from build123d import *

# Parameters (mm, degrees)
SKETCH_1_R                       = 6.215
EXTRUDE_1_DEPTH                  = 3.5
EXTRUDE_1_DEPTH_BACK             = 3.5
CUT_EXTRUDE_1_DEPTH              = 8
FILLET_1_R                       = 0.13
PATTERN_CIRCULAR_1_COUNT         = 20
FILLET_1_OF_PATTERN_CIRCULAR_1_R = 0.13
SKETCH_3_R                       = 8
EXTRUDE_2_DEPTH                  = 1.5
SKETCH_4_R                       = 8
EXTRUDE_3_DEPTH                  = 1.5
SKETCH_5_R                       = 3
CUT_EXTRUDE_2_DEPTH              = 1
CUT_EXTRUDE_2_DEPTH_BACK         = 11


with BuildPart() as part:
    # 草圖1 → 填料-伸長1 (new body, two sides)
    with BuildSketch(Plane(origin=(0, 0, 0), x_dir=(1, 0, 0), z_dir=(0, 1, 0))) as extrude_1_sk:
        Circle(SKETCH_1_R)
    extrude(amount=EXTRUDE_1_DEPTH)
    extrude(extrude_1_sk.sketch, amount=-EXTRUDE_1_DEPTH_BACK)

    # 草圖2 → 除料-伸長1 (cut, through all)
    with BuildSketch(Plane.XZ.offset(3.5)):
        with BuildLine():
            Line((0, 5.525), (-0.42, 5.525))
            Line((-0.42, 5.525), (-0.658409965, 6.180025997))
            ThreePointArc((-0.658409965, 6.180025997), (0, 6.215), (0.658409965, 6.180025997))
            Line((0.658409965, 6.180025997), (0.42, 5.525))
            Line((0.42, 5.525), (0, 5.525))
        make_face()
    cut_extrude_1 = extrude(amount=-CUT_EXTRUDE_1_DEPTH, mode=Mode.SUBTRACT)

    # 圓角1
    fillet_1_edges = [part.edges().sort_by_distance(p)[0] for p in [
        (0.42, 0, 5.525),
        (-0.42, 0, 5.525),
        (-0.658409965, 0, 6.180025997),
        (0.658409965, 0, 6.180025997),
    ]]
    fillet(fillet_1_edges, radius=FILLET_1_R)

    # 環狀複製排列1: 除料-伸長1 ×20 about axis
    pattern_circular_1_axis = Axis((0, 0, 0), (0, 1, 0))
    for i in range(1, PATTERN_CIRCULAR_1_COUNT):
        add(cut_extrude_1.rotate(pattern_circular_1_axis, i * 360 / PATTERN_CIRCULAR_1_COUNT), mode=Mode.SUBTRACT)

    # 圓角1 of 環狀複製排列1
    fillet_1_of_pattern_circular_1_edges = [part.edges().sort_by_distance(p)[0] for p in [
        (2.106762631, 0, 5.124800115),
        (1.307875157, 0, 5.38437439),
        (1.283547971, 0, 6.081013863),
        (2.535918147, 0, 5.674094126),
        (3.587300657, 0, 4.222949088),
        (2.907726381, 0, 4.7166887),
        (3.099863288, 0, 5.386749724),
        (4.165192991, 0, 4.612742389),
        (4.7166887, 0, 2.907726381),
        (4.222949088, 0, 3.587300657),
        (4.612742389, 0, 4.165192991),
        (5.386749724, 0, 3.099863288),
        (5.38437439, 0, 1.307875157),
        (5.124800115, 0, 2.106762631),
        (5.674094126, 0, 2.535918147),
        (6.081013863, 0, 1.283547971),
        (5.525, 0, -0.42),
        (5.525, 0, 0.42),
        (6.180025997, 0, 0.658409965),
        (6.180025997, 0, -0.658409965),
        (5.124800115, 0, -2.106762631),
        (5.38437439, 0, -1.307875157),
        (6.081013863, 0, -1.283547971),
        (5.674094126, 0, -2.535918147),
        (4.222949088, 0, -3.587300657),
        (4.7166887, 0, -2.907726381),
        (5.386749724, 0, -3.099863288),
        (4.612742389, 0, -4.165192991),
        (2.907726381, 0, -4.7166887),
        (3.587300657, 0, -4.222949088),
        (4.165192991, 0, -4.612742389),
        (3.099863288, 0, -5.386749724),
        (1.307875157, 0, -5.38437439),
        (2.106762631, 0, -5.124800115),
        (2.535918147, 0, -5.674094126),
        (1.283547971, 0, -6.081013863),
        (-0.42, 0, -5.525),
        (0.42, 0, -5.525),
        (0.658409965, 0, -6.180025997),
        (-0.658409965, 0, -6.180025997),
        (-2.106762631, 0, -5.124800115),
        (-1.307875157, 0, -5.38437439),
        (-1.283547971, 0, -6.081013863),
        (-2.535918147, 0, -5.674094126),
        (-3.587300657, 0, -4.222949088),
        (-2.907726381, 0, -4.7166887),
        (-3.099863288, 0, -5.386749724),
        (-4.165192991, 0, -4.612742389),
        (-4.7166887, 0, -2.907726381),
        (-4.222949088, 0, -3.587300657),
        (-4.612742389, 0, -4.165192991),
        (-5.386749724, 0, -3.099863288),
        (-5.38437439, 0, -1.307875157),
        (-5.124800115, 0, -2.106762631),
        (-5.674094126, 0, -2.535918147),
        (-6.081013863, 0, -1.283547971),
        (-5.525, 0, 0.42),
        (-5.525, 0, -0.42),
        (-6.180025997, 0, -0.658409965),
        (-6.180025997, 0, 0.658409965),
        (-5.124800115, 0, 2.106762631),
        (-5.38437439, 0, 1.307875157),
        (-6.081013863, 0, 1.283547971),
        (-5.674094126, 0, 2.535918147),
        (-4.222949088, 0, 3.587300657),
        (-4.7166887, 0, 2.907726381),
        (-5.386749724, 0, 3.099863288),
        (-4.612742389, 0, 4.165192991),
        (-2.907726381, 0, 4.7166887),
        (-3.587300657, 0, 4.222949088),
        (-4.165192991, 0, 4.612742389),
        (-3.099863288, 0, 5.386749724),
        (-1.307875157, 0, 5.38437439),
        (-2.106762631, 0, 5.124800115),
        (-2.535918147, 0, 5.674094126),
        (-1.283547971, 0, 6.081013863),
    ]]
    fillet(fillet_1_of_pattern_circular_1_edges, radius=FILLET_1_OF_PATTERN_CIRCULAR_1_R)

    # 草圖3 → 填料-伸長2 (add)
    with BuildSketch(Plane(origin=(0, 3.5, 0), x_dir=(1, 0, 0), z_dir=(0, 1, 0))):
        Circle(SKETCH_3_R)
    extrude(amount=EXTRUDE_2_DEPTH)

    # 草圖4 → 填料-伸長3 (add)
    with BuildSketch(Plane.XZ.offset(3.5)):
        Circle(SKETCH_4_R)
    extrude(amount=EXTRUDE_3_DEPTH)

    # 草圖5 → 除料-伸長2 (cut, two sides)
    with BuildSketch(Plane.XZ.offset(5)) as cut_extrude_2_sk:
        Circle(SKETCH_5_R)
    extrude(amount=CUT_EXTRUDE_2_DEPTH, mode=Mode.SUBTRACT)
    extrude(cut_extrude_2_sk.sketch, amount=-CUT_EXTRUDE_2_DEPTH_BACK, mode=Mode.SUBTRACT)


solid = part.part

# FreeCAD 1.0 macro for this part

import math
import FreeCAD as App
import Part
import Sketcher

V = App.Vector
Q = App.Units.Quantity


def edges_at(feature, points):
    """Names of the edges that pass closest to the given points."""
    edges = feature.Shape.Edges
    near = lambda p: min(range(len(edges)), key=lambda i: edges[i].distToShape(Part.Vertex(*p))[0])
    return sorted({f"Edge{near(p) + 1}" for p in points})

doc = App.newDocument("Part")
body = doc.addObject("PartDesign::Body", "Body")

# Sketch on XZ plane
sketch1 = body.newObject("Sketcher::SketchObject", "Sketch")
sketch1.AttachmentSupport = (doc.getObject("XZ_Plane"), [""])
sketch1.MapMode = "FlatFace"
sketch1.addGeometry(Part.Circle(V(0, 0, 0), V(0, 0, 1), 6.215), False)
sketch1.addConstraint(Sketcher.Constraint("Coincident", 0, 3, -1, 1))
sketch1.addConstraint(Sketcher.Constraint("Diameter", 0, 12.43))
pad1 = body.newObject("PartDesign::Pad", "Pad")
pad1.Profile = sketch1
pad1.Type = "TwoLengths"
pad1.Length = 3.5
pad1.Length2 = 3.5
pad1.Reversed = True

# Sketch on XZ plane
sketch2 = body.newObject("Sketcher::SketchObject", "Sketch001")
sketch2.AttachmentSupport = (doc.getObject("XZ_Plane"), [""])
sketch2.MapMode = "FlatFace"
sketch2.AttachmentOffset = App.Placement(V(0, 0, 3.5), App.Rotation())
sketch2.addGeometry(Part.LineSegment(V(-0.65841, 6.180026, 0), V(-0.42, 5.525, 0)), False)
sketch2.addGeometry(Part.LineSegment(V(-0.42, 5.525, 0), V(0.42, 5.525, 0)), False)
sketch2.addGeometry(Part.LineSegment(V(0.42, 5.525, 0), V(0.65841, 6.180026, 0)), False)
sketch2.addGeometry(Part.ArcOfCircle(Part.Circle(V(0, 0, 0), V(0, 0, 1), 6.215), math.radians(83.91874), math.radians(96.08126)), False)
sketch2.addConstraint(Sketcher.Constraint("Coincident", 0, 2, 1, 1))
sketch2.addConstraint(Sketcher.Constraint("Coincident", 1, 2, 2, 1))
sketch2.addConstraint(Sketcher.Constraint("Coincident", 2, 2, 3, 1))
sketch2.addConstraint(Sketcher.Constraint("Coincident", 3, 2, 0, 1))
sketch2.addConstraint(Sketcher.Constraint("Horizontal", 1))
sketch2.addConstraint(Sketcher.Constraint("Coincident", 3, 3, -1, 1))
sketch2.addConstraint(Sketcher.Constraint("Horizontal", 2, 2, 3, 2))
sketch2.addConstraint(Sketcher.Constraint("Equal", 0, 2))
sketch2.addConstraint(Sketcher.Constraint("Angle", 0, Q("-70 deg")))
sketch2.addConstraint(Sketcher.Constraint("Radius", 3, 6.215))
sketch2.addConstraint(Sketcher.Constraint("DistanceX", 1, 1, 1, 2, 0.84))
sketch2.addConstraint(Sketcher.Constraint("DistanceY", -1, 1, 0, 2, 5.525))
pocket1 = body.newObject("PartDesign::Pocket", "Pocket")
pocket1.Profile = sketch2
pocket1.Type = "ThroughAll"
doc.recompute()

fillet = body.newObject("PartDesign::Fillet", "Fillet")
fillet.Base = (pocket1, edges_at(pocket1, [
    (0.42, 0, 5.525),
    (-0.42, 0, 5.525),
    (-0.658, 0, 6.18),
    (0.658, 0, 6.18),
]))
fillet.Radius = 0.13
doc.recompute()

polarpattern = body.newObject("PartDesign::PolarPattern", "PolarPattern")
polarpattern.Originals = [pocket1]
polarpattern.Axis = (doc.getObject("Y_Axis"), [""])
polarpattern.Angle = 360
polarpattern.Occurrences = 20
body.Tip = polarpattern
doc.recompute()

fillet2 = body.newObject("PartDesign::Fillet", "Fillet001")
fillet2.Base = (polarpattern, edges_at(polarpattern, [
    (2.107, 0, 5.125),
    (1.308, 0, 5.384),
    (1.284, 0, 6.081),
    (2.536, 0, 5.674),
    (3.587, 0, 4.223),
    (2.908, 0, 4.717),
    (3.1, 0, 5.387),
    (4.165, 0, 4.613),
    (4.717, 0, 2.908),
    (4.223, 0, 3.587),
    (4.613, 0, 4.165),
    (5.387, 0, 3.1),
    (5.384, 0, 1.308),
    (5.125, 0, 2.107),
    (5.674, 0, 2.536),
    (6.081, 0, 1.284),
    (5.525, 0, -0.42),
    (5.525, 0, 0.42),
    (6.18, 0, 0.658),
    (6.18, 0, -0.658),
    (5.125, 0, -2.107),
    (5.384, 0, -1.308),
    (6.081, 0, -1.284),
    (5.674, 0, -2.536),
    (4.223, 0, -3.587),
    (4.717, 0, -2.908),
    (5.387, 0, -3.1),
    (4.613, 0, -4.165),
    (2.908, 0, -4.717),
    (3.587, 0, -4.223),
    (4.165, 0, -4.613),
    (3.1, 0, -5.387),
    (1.308, 0, -5.384),
    (2.107, 0, -5.125),
    (2.536, 0, -5.674),
    (1.284, 0, -6.081),
    (-0.42, 0, -5.525),
    (0.42, 0, -5.525),
    (0.658, 0, -6.18),
    (-0.658, 0, -6.18),
    (-2.107, 0, -5.125),
    (-1.308, 0, -5.384),
    (-1.284, 0, -6.081),
    (-2.536, 0, -5.674),
    (-3.587, 0, -4.223),
    (-2.908, 0, -4.717),
    (-3.1, 0, -5.387),
    (-4.165, 0, -4.613),
    (-4.717, 0, -2.908),
    (-4.223, 0, -3.587),
    (-4.613, 0, -4.165),
    (-5.387, 0, -3.1),
    (-5.384, 0, -1.308),
    (-5.125, 0, -2.107),
    (-5.674, 0, -2.536),
    (-6.081, 0, -1.284),
    (-5.525, 0, 0.42),
    (-5.525, 0, -0.42),
    (-6.18, 0, -0.658),
    (-6.18, 0, 0.658),
    (-5.125, 0, 2.107),
    (-5.384, 0, 1.308),
    (-6.081, 0, 1.284),
    (-5.674, 0, 2.536),
    (-4.223, 0, 3.587),
    (-4.717, 0, 2.908),
    (-5.387, 0, 3.1),
    (-4.613, 0, 4.165),
    (-2.908, 0, 4.717),
    (-3.587, 0, 4.223),
    (-4.165, 0, 4.613),
    (-3.1, 0, 5.387),
    (-1.308, 0, 5.384),
    (-2.107, 0, 5.125),
    (-2.536, 0, 5.674),
    (-1.284, 0, 6.081),
]))
fillet2.Radius = 0.13

# Sketch on XZ plane
sketch3 = body.newObject("Sketcher::SketchObject", "Sketch002")
sketch3.AttachmentSupport = (doc.getObject("XZ_Plane"), [""])
sketch3.MapMode = "FlatFace"
sketch3.AttachmentOffset = App.Placement(V(0, 0, -3.5), App.Rotation())
sketch3.addGeometry(Part.Circle(V(0, 0, 0), V(0, 0, 1), 8), False)
sketch3.addConstraint(Sketcher.Constraint("Coincident", 0, 3, -1, 1))
sketch3.addConstraint(Sketcher.Constraint("Diameter", 0, 16.0))
pad2 = body.newObject("PartDesign::Pad", "Pad001")
pad2.Profile = sketch3
pad2.Length = 1.5
pad2.Reversed = True

# Sketch on XZ plane
sketch4 = body.newObject("Sketcher::SketchObject", "Sketch003")
sketch4.AttachmentSupport = (doc.getObject("XZ_Plane"), [""])
sketch4.MapMode = "FlatFace"
sketch4.AttachmentOffset = App.Placement(V(0, 0, 3.5), App.Rotation())
sketch4.addGeometry(Part.Circle(V(0, 0, 0), V(0, 0, 1), 8), False)
sketch4.addConstraint(Sketcher.Constraint("Coincident", 0, 3, -1, 1))
sketch4.addConstraint(Sketcher.Constraint("Diameter", 0, 16.0))
pad3 = body.newObject("PartDesign::Pad", "Pad002")
pad3.Profile = sketch4
pad3.Length = 1.5

# Sketch on XZ plane
sketch5 = body.newObject("Sketcher::SketchObject", "Sketch004")
sketch5.AttachmentSupport = (doc.getObject("XZ_Plane"), [""])
sketch5.MapMode = "FlatFace"
sketch5.AttachmentOffset = App.Placement(V(0, 0, 5), App.Rotation())
sketch5.addGeometry(Part.Circle(V(0, 0, 0), V(0, 0, 1), 3), False)
sketch5.addConstraint(Sketcher.Constraint("Coincident", 0, 3, -1, 1))
sketch5.addConstraint(Sketcher.Constraint("Diameter", 0, 6.0))
pocket2 = body.newObject("PartDesign::Pocket", "Pocket001")
pocket2.Profile = sketch5
pocket2.Type = "ThroughAll"
pocket2.Midplane = True

doc.recompute()
